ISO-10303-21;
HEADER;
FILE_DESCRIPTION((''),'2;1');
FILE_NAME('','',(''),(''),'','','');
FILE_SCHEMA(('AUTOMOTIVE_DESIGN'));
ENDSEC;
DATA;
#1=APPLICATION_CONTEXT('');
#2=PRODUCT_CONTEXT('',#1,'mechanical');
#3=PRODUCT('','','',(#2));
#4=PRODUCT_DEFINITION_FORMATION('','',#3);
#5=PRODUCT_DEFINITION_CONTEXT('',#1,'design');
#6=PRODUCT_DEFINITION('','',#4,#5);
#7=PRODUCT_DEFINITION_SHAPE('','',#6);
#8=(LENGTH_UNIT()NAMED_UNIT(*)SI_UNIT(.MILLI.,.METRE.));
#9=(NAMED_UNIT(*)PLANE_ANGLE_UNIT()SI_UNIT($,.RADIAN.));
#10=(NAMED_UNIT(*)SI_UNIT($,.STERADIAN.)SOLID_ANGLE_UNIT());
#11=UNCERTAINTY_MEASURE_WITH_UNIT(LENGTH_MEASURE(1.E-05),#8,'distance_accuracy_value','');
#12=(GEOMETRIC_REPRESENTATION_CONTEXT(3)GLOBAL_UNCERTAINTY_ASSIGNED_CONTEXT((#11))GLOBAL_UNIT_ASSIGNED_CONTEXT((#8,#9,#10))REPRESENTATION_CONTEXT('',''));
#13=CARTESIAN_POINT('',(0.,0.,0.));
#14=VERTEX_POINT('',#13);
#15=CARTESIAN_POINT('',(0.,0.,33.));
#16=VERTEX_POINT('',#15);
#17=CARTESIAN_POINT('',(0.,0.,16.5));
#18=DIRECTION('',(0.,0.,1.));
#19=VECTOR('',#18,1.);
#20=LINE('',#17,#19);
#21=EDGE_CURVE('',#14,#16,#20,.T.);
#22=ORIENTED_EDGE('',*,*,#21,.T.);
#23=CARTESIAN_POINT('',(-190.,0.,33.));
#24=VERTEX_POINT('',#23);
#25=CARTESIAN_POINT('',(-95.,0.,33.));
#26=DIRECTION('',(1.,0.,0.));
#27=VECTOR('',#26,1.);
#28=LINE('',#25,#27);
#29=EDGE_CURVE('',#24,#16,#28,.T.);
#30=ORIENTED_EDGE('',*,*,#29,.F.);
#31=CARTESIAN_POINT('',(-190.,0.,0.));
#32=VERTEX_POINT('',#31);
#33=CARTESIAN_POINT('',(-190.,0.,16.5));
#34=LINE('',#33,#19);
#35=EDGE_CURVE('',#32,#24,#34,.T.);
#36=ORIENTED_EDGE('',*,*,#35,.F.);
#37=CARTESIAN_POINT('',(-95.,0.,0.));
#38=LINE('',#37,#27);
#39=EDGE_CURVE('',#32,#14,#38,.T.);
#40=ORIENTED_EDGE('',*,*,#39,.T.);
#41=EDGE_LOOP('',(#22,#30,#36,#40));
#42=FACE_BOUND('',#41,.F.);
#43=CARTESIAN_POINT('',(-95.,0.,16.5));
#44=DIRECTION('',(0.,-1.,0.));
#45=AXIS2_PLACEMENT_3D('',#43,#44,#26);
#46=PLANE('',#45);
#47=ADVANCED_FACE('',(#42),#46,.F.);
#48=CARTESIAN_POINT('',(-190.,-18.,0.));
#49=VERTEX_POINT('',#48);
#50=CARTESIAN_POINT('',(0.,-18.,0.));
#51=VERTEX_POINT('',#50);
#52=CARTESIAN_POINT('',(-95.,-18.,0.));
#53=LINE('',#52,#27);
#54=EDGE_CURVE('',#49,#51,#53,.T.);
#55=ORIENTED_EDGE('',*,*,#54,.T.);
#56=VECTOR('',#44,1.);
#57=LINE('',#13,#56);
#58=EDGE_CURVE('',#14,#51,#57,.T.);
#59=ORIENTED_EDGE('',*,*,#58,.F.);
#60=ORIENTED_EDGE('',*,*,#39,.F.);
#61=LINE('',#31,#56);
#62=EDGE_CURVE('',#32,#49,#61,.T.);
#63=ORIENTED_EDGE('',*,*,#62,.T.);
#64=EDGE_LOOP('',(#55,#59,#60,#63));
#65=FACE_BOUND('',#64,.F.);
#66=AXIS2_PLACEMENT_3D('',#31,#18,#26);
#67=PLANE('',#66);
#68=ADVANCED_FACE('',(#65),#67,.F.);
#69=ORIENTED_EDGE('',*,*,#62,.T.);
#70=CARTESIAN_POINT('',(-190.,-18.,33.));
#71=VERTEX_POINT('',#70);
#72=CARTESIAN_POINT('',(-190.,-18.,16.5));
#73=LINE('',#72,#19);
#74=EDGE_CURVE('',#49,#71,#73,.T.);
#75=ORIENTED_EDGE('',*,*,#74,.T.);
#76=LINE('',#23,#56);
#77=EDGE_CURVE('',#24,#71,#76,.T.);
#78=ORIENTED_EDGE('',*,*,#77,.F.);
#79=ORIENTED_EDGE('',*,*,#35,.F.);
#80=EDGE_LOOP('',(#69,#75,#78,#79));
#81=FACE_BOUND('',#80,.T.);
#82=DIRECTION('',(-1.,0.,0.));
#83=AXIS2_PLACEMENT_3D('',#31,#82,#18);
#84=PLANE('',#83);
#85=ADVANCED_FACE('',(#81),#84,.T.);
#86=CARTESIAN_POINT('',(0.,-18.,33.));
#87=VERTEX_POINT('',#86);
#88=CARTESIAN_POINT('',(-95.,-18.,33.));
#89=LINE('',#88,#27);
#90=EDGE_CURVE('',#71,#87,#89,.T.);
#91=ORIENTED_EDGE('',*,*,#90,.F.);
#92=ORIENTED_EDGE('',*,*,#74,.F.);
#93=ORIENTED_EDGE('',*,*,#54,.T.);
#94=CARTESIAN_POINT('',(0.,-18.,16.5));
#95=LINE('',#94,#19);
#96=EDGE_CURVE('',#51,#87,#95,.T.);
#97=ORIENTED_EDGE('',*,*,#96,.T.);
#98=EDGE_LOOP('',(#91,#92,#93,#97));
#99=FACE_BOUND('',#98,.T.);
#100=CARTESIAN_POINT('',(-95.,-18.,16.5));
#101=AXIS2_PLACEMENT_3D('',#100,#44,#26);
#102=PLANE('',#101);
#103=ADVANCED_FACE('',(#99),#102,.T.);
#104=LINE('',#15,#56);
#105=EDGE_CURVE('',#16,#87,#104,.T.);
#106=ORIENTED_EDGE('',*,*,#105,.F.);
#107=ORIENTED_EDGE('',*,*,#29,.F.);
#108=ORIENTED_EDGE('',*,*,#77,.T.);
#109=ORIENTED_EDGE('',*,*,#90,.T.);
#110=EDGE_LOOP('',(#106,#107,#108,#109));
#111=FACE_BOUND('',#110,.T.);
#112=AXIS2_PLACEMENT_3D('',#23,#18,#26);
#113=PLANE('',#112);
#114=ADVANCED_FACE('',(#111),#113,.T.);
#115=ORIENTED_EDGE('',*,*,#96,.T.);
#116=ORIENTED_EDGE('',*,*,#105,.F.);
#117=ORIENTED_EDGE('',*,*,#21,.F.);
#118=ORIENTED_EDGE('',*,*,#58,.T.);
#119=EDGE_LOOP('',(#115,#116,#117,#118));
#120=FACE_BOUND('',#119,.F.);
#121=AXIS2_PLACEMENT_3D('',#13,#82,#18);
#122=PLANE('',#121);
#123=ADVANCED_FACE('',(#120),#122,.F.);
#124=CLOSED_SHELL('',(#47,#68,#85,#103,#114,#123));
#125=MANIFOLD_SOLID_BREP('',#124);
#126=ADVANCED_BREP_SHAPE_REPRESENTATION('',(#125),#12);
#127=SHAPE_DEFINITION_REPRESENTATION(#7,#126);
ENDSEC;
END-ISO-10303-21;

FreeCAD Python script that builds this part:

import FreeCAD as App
import Part
import Sketcher

doc = App.newDocument("Part")
body = doc.addObject("PartDesign::Body", "Body")

sketch1 = body.newObject("Sketcher::SketchObject", "Sketch")
sketch1.AttachmentSupport = (doc.getObject("XZ_Plane"), [""])
sketch1.MapMode = "FlatFace"
sketch1.addGeometry([
    Part.LineSegment(App.Vector(-190, 33, 0), App.Vector(-190, 0, 0)),
    Part.LineSegment(App.Vector(-190, 0, 0), App.Vector(0, 0, 0)),
    Part.LineSegment(App.Vector(0, 0, 0), App.Vector(0, 33, 0)),
    Part.LineSegment(App.Vector(0, 33, 0), App.Vector(-190, 33, 0)),
], False)
sketch1.addConstraint([
    Sketcher.Constraint("Coincident", 0, 2, 1, 1),
    Sketcher.Constraint("Coincident", 1, 2, 2, 1),
    Sketcher.Constraint("Coincident", 2, 2, 3, 1),
    Sketcher.Constraint("Coincident", 3, 2, 0, 1),
    Sketcher.Constraint("Vertical", 0),
    Sketcher.Constraint("Horizontal", 1),
    Sketcher.Constraint("Vertical", 2),
    Sketcher.Constraint("Horizontal", 3),
    Sketcher.Constraint("Coincident", 1, 2, -1, 1),
    Sketcher.Constraint("DistanceX", 1, 1, 1, 2, 190.0),
    Sketcher.Constraint("DistanceY", 0, 2, 0, 1, 33.0),
])
pad1 = body.newObject("PartDesign::Pad", "Pad")
pad1.Profile = sketch1
pad1.Length = 18

doc.recompute()
